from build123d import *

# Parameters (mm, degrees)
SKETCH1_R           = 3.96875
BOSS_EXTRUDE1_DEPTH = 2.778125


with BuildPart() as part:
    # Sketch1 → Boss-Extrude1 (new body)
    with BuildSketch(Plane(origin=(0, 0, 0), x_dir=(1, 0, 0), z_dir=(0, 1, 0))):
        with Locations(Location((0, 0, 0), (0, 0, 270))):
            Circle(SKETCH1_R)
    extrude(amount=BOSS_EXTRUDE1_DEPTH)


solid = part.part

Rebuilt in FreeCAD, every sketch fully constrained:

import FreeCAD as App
import Part
import Sketcher
from FreeCAD import Vector
Q = App.Units.Quantity

doc = App.newDocument("Part")
body = doc.addObject("PartDesign::Body", "Body")

# Sketch on XZ plane
sketch1 = body.newObject("Sketcher::SketchObject", "Sketch")
sketch1.AttachmentSupport = (doc.getObject("XZ_Plane"), [""])
sketch1.MapMode = "FlatFace"
sketch1.addGeometry(Part.Circle(Vector(0, 0, 0), Vector(0, 0, 1), 4), False)
sketch1.addConstraint([
    Sketcher.Constraint("Coincident", 0, 3, -1, 1),
    Sketcher.Constraint("Diameter", 0, Q("0.3125 in")),
])
pad1 = body.newObject("PartDesign::Pad", "Pad")
pad1.Profile = sketch1
pad1.Length = Q("0.109375 in")
pad1.Reversed = True

doc.recompute()
